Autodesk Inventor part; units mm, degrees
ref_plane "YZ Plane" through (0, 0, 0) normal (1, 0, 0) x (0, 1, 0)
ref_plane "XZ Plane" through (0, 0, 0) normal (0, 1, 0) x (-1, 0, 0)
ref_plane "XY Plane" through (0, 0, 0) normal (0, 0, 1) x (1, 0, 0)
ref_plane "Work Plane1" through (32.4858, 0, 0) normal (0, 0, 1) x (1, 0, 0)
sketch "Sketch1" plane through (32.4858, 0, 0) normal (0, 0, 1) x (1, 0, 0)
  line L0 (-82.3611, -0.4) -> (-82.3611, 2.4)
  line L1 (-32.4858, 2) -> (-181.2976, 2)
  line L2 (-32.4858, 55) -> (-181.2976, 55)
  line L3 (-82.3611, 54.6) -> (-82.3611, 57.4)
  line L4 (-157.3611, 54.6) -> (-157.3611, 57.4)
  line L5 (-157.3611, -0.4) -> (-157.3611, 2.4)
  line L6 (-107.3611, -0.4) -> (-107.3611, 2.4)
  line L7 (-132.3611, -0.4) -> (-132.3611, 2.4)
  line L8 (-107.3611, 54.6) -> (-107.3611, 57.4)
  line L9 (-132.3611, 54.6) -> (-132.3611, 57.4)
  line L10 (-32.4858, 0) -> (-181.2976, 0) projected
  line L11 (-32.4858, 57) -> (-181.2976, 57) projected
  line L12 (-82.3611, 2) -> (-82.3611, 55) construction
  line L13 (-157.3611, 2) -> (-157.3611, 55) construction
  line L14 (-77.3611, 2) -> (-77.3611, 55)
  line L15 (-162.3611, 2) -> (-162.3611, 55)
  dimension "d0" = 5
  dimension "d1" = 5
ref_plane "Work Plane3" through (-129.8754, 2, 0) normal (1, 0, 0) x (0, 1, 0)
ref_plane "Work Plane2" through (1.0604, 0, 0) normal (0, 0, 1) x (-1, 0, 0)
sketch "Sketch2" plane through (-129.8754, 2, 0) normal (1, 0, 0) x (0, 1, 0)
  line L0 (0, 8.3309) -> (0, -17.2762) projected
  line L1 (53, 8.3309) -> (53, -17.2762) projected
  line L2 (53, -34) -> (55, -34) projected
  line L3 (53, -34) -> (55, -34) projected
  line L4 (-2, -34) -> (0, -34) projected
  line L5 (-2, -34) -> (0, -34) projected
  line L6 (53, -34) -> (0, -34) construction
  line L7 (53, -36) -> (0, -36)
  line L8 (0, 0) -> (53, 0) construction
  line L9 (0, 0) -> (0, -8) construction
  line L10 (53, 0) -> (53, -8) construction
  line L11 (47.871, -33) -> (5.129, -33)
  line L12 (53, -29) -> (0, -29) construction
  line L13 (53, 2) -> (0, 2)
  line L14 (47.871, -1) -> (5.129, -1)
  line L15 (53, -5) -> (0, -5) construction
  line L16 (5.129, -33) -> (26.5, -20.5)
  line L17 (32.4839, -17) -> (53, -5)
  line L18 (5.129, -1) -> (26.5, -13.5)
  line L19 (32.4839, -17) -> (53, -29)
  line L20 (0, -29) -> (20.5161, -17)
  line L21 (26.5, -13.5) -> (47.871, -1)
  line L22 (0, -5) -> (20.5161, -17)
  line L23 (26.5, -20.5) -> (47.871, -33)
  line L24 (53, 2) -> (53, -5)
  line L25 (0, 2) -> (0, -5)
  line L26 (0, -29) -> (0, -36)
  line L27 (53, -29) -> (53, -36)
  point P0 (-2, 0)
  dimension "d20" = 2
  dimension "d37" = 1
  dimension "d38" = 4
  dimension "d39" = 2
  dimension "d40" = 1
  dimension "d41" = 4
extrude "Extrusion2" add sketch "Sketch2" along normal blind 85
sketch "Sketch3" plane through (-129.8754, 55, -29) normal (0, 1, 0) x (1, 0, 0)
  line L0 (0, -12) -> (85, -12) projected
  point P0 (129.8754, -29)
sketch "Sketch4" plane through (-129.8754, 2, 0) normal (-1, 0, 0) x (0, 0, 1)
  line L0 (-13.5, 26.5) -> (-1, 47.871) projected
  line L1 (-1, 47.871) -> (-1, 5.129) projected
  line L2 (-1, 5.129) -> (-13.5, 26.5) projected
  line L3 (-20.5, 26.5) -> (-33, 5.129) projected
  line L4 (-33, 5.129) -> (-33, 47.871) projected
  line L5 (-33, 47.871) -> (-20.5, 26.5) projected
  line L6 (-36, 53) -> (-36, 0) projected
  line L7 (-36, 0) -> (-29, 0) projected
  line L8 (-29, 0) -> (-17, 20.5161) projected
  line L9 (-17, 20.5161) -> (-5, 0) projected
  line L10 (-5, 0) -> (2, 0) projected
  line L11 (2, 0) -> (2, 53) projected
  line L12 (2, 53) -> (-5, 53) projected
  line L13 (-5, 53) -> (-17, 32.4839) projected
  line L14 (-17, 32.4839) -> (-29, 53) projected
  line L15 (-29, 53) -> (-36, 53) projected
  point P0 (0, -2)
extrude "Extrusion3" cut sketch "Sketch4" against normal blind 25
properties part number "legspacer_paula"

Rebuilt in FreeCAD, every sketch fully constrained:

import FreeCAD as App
import Part
import Sketcher

V = App.Vector

doc = App.newDocument("Part")
params = doc.addObject("Spreadsheet::Sheet", "Params")
for row, (alias, value) in enumerate([
    ("sketch1_width", "53 mm"),
    ("pad1_length", "85 mm"),
    ("sketch2_width", "53 mm"),
    ("sketch2_height", "7 mm"),
    ("pocket1_length", "25 mm"),
], start=1):
    params.set(f"A{row}", alias)
    params.set(f"B{row}", "=" + value)
    params.setAlias(f"B{row}", alias)

body = doc.addObject("PartDesign::Body", "Body")

# Sketch on YZ plane
sketch1 = body.newObject("Sketcher::SketchObject", "Sketch")
sketch1.AttachmentSupport = (doc.getObject("YZ_Plane"), [""])
sketch1.MapMode = "FlatFace"
sketch1.AttachmentOffset = App.Placement(V(0, 0, -129.8754), App.Rotation())
sketch1.addGeometry([
    Part.LineSegment(V(55, 2, 0), V(2, 2, 0)),  # 0
    Part.LineSegment(V(2, 2, 0), V(2, -5, 0)),  # 1
    Part.LineSegment(V(2, -5, 0), V(23, -17, 0)),  # 2
    Part.LineSegment(V(23, -17, 0), V(2, -29, 0)),  # 3
    Part.LineSegment(V(2, -29, 0), V(2, -36, 0)),  # 4
    Part.LineSegment(V(2, -36, 0), V(55, -36, 0)),  # 5
    Part.LineSegment(V(55, -36, 0), V(55, -29, 0)),  # 6
    Part.LineSegment(V(55, -29, 0), V(34, -17, 0)),  # 7
    Part.LineSegment(V(34, -17, 0), V(55, -5, 0)),  # 8
    Part.LineSegment(V(55, -5, 0), V(55, 2, 0)),  # 9
    Part.LineSegment(V(28, -20, 0), V(50, -33, 0)),  # 10
    Part.LineSegment(V(50, -33, 0), V(7, -33, 0)),  # 11
    Part.LineSegment(V(7, -33, 0), V(28, -20, 0)),  # 12
    Part.LineSegment(V(7, -1, 0), V(50, -1, 0)),  # 13
    Part.LineSegment(V(50, -1, 0), V(28, -14, 0)),  # 14
    Part.LineSegment(V(28, -14, 0), V(7, -1, 0)),  # 15
], False)
sketch1.addConstraint([
    Sketcher.Constraint("Coincident", 0, 2, 1, 1),
    Sketcher.Constraint("Coincident", 1, 2, 2, 1),
    Sketcher.Constraint("Coincident", 2, 2, 3, 1),
    Sketcher.Constraint("Coincident", 3, 2, 4, 1),
    Sketcher.Constraint("Coincident", 4, 2, 5, 1),
    Sketcher.Constraint("Coincident", 5, 2, 6, 1),
    Sketcher.Constraint("Coincident", 6, 2, 7, 1),
    Sketcher.Constraint("Coincident", 7, 2, 8, 1),
    Sketcher.Constraint("Coincident", 8, 2, 9, 1),
    Sketcher.Constraint("Coincident", 9, 2, 0, 1),
    Sketcher.Constraint("Coincident", 10, 2, 11, 1),
    Sketcher.Constraint("Coincident", 11, 2, 12, 1),
    Sketcher.Constraint("Coincident", 12, 2, 10, 1),
    Sketcher.Constraint("Coincident", 13, 2, 14, 1),
    Sketcher.Constraint("Coincident", 14, 2, 15, 1),
    Sketcher.Constraint("Coincident", 15, 2, 13, 1),
    Sketcher.Constraint("Horizontal", 0),
    Sketcher.Constraint("Vertical", 1),
    Sketcher.Constraint("Vertical", 4),
    Sketcher.Constraint("Horizontal", 5),
    Sketcher.Constraint("Vertical", 6),
    Sketcher.Constraint("Vertical", 9),
    Sketcher.Constraint("Horizontal", 11),
    Sketcher.Constraint("Horizontal", 13),
    Sketcher.Constraint("Parallel", 2, 7),
    Sketcher.Constraint("Parallel", 3, 8),
    Sketcher.Constraint("Parallel", 7, 10),
    Sketcher.Constraint("Parallel", 8, 12),
    Sketcher.Constraint("Parallel", 12, 14),
    Sketcher.Constraint("Parallel", 10, 15),
    Sketcher.Constraint("Horizontal", 3, 2, 6, 2),
    Sketcher.Constraint("Horizontal", 2, 2, 7, 2),
    Sketcher.Constraint("Horizontal", 1, 2, 8, 2),
    Sketcher.Constraint("Vertical", 1, 2, 3, 2),
    Sketcher.Constraint("Vertical", 6, 2, 8, 2),
    Sketcher.Constraint("Vertical", 10, 2, 13, 2),
    Sketcher.Constraint("Vertical", 12, 2, 14, 2),
    Sketcher.Constraint("Equal", 1, 4),
    Sketcher.Constraint("DistanceX", -1, 1, 0, 2, 2.0),
    Sketcher.Constraint("DistanceY", -1, 1, 0, 2, 2.0),
    Sketcher.Constraint("DistanceY", 13, 2, -1, 1, 1.0),
    Sketcher.Constraint("DistanceY", 10, 2, 6, 2, 4.0),
    Sketcher.Constraint("DistanceY", 8, 2, 13, 2, 4.0),
    Sketcher.Constraint("DistanceX", 0, 2, 0, 1, 53.0),
    Sketcher.Constraint("DistanceY", 2, 2, -1, 1, 17.0),
    Sketcher.Constraint("DistanceY", 12, 2, 14, 2, 7.0),
    Sketcher.Constraint("DistanceX", -1, 1, 12, 2, 28.5),
    Sketcher.Constraint("DistanceX", 11, 2, 11, 1, 42.742),
])
sketch1.setExpression("Constraints[43]", "Params.sketch1_width")
pad1 = body.newObject("PartDesign::Pad", "Pad")
pad1.Profile = sketch1
pad1.setExpression("Length", "Params.pad1_length")

# Sketch on YZ plane
sketch2 = body.newObject("Sketcher::SketchObject", "Sketch001")
sketch2.AttachmentSupport = (doc.getObject("YZ_Plane"), [""])
sketch2.MapMode = "FlatFace"
sketch2.AttachmentOffset = App.Placement(V(0, 0, -129.8754), App.Rotation())
sketch2.addGeometry([
    Part.LineSegment(V(55, -29, 0), V(55, -36, 0)),  # 0
    Part.LineSegment(V(55, -36, 0), V(2, -36, 0)),  # 1
    Part.LineSegment(V(2, -36, 0), V(2, -29, 0)),  # 2
    Part.LineSegment(V(2, -29, 0), V(23, -17, 0)),  # 3
    Part.LineSegment(V(23, -17, 0), V(2, -5, 0)),  # 4
    Part.LineSegment(V(2, -5, 0), V(2, 2, 0)),  # 5
    Part.LineSegment(V(2, 2, 0), V(55, 2, 0)),  # 6
    Part.LineSegment(V(55, 2, 0), V(55, -5, 0)),  # 7
    Part.LineSegment(V(55, -5, 0), V(34, -17, 0)),  # 8
    Part.LineSegment(V(34, -17, 0), V(55, -29, 0)),  # 9
    Part.LineSegment(V(50, -33, 0), V(28, -20, 0)),  # 10
    Part.LineSegment(V(28, -20, 0), V(7, -33, 0)),  # 11
    Part.LineSegment(V(7, -33, 0), V(50, -33, 0)),  # 12
    Part.LineSegment(V(7, -1, 0), V(28, -14, 0)),  # 13
    Part.LineSegment(V(28, -14, 0), V(50, -1, 0)),  # 14
    Part.LineSegment(V(50, -1, 0), V(7, -1, 0)),  # 15
], False)
sketch2.addConstraint([
    Sketcher.Constraint("Coincident", 0, 2, 1, 1),
    Sketcher.Constraint("Coincident", 1, 2, 2, 1),
    Sketcher.Constraint("Coincident", 2, 2, 3, 1),
    Sketcher.Constraint("Coincident", 3, 2, 4, 1),
    Sketcher.Constraint("Coincident", 4, 2, 5, 1),
    Sketcher.Constraint("Coincident", 5, 2, 6, 1),
    Sketcher.Constraint("Coincident", 6, 2, 7, 1),
    Sketcher.Constraint("Coincident", 7, 2, 8, 1),
    Sketcher.Constraint("Coincident", 8, 2, 9, 1),
    Sketcher.Constraint("Coincident", 9, 2, 0, 1),
    Sketcher.Constraint("Coincident", 10, 2, 11, 1),
    Sketcher.Constraint("Coincident", 11, 2, 12, 1),
    Sketcher.Constraint("Coincident", 12, 2, 10, 1),
    Sketcher.Constraint("Coincident", 13, 2, 14, 1),
    Sketcher.Constraint("Coincident", 14, 2, 15, 1),
    Sketcher.Constraint("Coincident", 15, 2, 13, 1),
    Sketcher.Constraint("Vertical", 0),
    Sketcher.Constraint("Horizontal", 1),
    Sketcher.Constraint("Vertical", 2),
    Sketcher.Constraint("Vertical", 5),
    Sketcher.Constraint("Horizontal", 6),
    Sketcher.Constraint("Vertical", 7),
    Sketcher.Constraint("Horizontal", 12),
    Sketcher.Constraint("Horizontal", 15),
    Sketcher.Constraint("Parallel", 3, 8),
    Sketcher.Constraint("Parallel", 4, 9),
    Sketcher.Constraint("Parallel", 9, 10),
    Sketcher.Constraint("Parallel", 8, 11),
    Sketcher.Constraint("Parallel", 10, 13),
    Sketcher.Constraint("Parallel", 11, 14),
    Sketcher.Constraint("Horizontal", 4, 2, 7, 2),
    Sketcher.Constraint("Horizontal", 3, 2, 8, 2),
    Sketcher.Constraint("Horizontal", 2, 2, 9, 2),
    Sketcher.Constraint("Vertical", 2, 2, 4, 2),
    Sketcher.Constraint("Vertical", 0, 2, 6, 2),
    Sketcher.Constraint("Vertical", 10, 2, 13, 2),
    Sketcher.Constraint("Vertical", 12, 2, 14, 2),
    Sketcher.Constraint("Equal", 2, 5),
    Sketcher.Constraint("DistanceX", 1, 2, 1, 1, 53.0),
    Sketcher.Constraint("DistanceY", 0, 2, 0, 1, 7.0),
    Sketcher.Constraint("DistanceX", -1, 1, 0, 2, 55.0),
    Sketcher.Constraint("DistanceY", 0, 2, -1, 1, 36.0),
    Sketcher.Constraint("DistanceY", 3, 2, -1, 1, 17.0),
    Sketcher.Constraint("DistanceY", 11, 2, -1, 1, 33.0),
    Sketcher.Constraint("DistanceY", 14, 2, -1, 1, 1.0),
    Sketcher.Constraint("DistanceY", 10, 2, 13, 2, 7.0),
    Sketcher.Constraint("DistanceX", -1, 1, 10, 2, 28.5),
    Sketcher.Constraint("DistanceX", 12, 1, 12, 2, 42.742),
])
sketch2.setExpression("Constraints[38]", "Params.sketch2_width")
sketch2.setExpression("Constraints[39]", "Params.sketch2_height")
pocket1 = body.newObject("PartDesign::Pocket", "Pocket")
pocket1.Profile = sketch2
pocket1.setExpression("Length", "Params.pocket1_length")
pocket1.Reversed = True

doc.recompute()
